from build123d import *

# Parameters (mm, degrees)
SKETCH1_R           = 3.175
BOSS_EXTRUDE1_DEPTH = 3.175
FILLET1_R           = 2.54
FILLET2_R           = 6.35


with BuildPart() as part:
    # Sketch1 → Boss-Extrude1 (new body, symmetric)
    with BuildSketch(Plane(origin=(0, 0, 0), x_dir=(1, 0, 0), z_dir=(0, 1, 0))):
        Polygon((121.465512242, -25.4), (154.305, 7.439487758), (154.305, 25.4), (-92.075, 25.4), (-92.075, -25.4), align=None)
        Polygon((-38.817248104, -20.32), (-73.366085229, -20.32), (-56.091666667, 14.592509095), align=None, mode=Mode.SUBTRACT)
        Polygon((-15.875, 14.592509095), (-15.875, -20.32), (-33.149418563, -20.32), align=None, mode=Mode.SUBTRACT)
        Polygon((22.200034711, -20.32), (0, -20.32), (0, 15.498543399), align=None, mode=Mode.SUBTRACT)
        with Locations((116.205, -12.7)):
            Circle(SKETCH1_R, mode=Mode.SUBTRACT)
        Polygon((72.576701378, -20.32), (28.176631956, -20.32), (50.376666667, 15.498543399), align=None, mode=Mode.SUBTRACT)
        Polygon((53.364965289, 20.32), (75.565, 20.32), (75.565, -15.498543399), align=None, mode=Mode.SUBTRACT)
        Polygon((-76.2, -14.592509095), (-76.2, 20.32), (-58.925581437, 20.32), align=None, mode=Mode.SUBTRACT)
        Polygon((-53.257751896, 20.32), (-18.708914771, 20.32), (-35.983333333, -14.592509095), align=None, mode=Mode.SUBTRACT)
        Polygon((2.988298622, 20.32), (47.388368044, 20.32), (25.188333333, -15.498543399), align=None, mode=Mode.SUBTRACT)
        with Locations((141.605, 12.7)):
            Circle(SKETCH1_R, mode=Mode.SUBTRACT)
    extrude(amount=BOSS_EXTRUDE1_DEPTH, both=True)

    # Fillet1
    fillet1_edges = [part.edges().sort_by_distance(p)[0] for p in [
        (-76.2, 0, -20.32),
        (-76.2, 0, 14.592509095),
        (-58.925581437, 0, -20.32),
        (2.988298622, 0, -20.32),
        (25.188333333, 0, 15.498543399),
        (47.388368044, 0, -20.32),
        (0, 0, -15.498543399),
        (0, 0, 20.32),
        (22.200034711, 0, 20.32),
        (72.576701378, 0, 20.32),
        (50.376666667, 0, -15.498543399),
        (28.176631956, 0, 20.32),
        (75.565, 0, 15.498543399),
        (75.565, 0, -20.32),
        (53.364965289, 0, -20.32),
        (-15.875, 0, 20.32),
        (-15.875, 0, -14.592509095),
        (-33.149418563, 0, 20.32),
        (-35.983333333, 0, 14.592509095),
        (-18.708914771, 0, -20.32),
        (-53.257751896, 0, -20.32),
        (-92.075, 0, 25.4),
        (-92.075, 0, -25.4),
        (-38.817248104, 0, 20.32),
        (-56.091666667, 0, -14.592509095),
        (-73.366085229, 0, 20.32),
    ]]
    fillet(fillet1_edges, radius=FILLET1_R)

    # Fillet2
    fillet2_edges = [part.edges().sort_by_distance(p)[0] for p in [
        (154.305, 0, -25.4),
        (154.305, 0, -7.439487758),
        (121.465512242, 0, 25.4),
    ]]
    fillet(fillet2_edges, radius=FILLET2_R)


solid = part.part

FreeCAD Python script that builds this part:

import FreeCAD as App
import Part
import Sketcher

V = App.Vector
Q = App.Units.Quantity


def edges_at(feature, points):
    """Names of the edges that pass closest to the given points."""
    edges = feature.Shape.Edges
    near = lambda p: min(range(len(edges)), key=lambda i: edges[i].distToShape(Part.Vertex(*p))[0])
    return sorted({f"Edge{near(p) + 1}" for p in points})


def add_polygon(sketch, points):
    """Adds a closed chain of lines whose ends are joined by coincident constraints."""
    first, n = sketch.GeometryCount, len(points)
    for a, b in zip(points, points[1:] + points[:1]):
        sketch.addGeometry(Part.LineSegment(App.Vector(*a, 0), App.Vector(*b, 0)), False)
    for i in range(n):
        sketch.addConstraint(Sketcher.Constraint("Coincident", first + i, 2, first + (i + 1) % n, 1))

doc = App.newDocument("Part")
body = doc.addObject("PartDesign::Body", "Body")

# Sketch on XZ plane
sketch1 = body.newObject("Sketcher::SketchObject", "Sketch")
sketch1.AttachmentSupport = (doc.getObject("XZ_Plane"), [""])
sketch1.MapMode = "FlatFace"
add_polygon(sketch1, [(121.5, 25.4), (154.3, -7.4), (154.3, -25.4), (-92.1, -25.4), (-92.1, 25.4)])  # lines 0-4
add_polygon(sketch1, [(-56.1, -14.6), (-38.8, 20.3), (-73.4, 20.3)])  # lines 5-7
add_polygon(sketch1, [(-33.1, 20.3), (-15.9, -14.6), (-15.9, 20.3)])  # lines 8-10
add_polygon(sketch1, [(0, -15.5), (22.2, 20.3), (0, 20.3)])  # lines 11-13
sketch1.addGeometry(Part.Circle(V(116.2, 12.7, 0), V(0, 0, 1), 3.2), False)  # 14
add_polygon(sketch1, [(50.4, -15.5), (72.6, 20.3), (28.2, 20.3)])  # lines 15-17
add_polygon(sketch1, [(-58.9, -20.3), (-76.2, 14.6), (-76.2, -20.3)])  # lines 18-20
add_polygon(sketch1, [(-36, 14.6), (-53.3, -20.3), (-18.7, -20.3)])  # lines 21-23
add_polygon(sketch1, [(25.2, 15.5), (3, -20.3), (47.4, -20.3)])  # lines 24-26
add_polygon(sketch1, [(75.6, 15.5), (53.4, -20.3), (75.6, -20.3)])  # lines 27-29
sketch1.addGeometry(Part.Circle(V(141.6, -12.7, 0), V(0, 0, 1), 3.2), False)  # 30
sketch1.addConstraint([
    Sketcher.Constraint("Vertical", 1),
    Sketcher.Constraint("Horizontal", 2),
    Sketcher.Constraint("Vertical", 3),
    Sketcher.Constraint("Horizontal", 4),
    Sketcher.Constraint("Horizontal", 6),
    Sketcher.Constraint("Vertical", 9),
    Sketcher.Constraint("Horizontal", 10),
    Sketcher.Constraint("Horizontal", 12),
    Sketcher.Constraint("Vertical", 13),
    Sketcher.Constraint("Horizontal", 16),
    Sketcher.Constraint("Vertical", 19),
    Sketcher.Constraint("Horizontal", 20),
    Sketcher.Constraint("Horizontal", 22),
    Sketcher.Constraint("Horizontal", 25),
    Sketcher.Constraint("Horizontal", 28),
    Sketcher.Constraint("Vertical", 29),
    Sketcher.Constraint("Equal", 14, 30),
    Sketcher.Constraint("PointOnObject", 12, 2, -2),
    Sketcher.Constraint("Parallel", 7, 8),
    Sketcher.Constraint("Parallel", 11, 15),
    Sketcher.Constraint("Parallel", 8, 18),
    Sketcher.Constraint("Parallel", 5, 21),
    Sketcher.Constraint("Parallel", 18, 23),
    Sketcher.Constraint("Parallel", 15, 24),
    Sketcher.Constraint("Parallel", 17, 26),
    Sketcher.Constraint("Parallel", 24, 27),
    Sketcher.Constraint("Horizontal", 7, 2, 8, 2),
    Sketcher.Constraint("Horizontal", 6, 2, 9, 2),
    Sketcher.Constraint("Horizontal", 10, 2, 11, 2),
    Sketcher.Constraint("Horizontal", 12, 2, 15, 2),
    Sketcher.Constraint("Horizontal", 13, 2, 17, 2),
    Sketcher.Constraint("Horizontal", 20, 2, 21, 2),
    Sketcher.Constraint("Horizontal", 18, 2, 23, 2),
    Sketcher.Constraint("Horizontal", 22, 2, 24, 2),
    Sketcher.Constraint("Horizontal", 25, 2, 27, 2),
    Sketcher.Constraint("Horizontal", 26, 2, 29, 2),
    Sketcher.Constraint("Equal", 10, 20),
    Sketcher.Constraint("Equal", 16, 25),
    Sketcher.Constraint("Equal", 5, 7),
    Sketcher.Constraint("Equal", 15, 17),
    Sketcher.Constraint("Diameter", 14, Q("0.25 in")),
    Sketcher.Constraint("DistanceY", 3, 1, 3, 2, Q("2 in")),
    Sketcher.Constraint("DistanceX", 2, 2, 2, 1, Q("9.7 in")),
    Sketcher.Constraint("DistanceY", 1, 2, -1, 1, Q("1 in")),
    Sketcher.Constraint("DistanceX", 18, 2, -1, 1, Q("3 in")),
    Sketcher.Constraint("Angle", 0, Q("-45 deg")),
    Sketcher.Constraint("DistanceX", 14, 3, 30, 3, Q("1 in")),
    Sketcher.Constraint("DistanceY", 30, 3, 14, 3, Q("1 in")),
    Sketcher.Constraint("DistanceX", 2, 2, 8, 2, Q("3 in")),
    Sketcher.Constraint("DistanceY", -1, 1, 14, 3, Q("0.5 in")),
    Sketcher.Constraint("DistanceY", -1, 1, 5, 2, Q("0.8 in")),
    Sketcher.Constraint("DistanceY", 19, 2, -1, 1, Q("0.8 in")),
    Sketcher.Constraint("DistanceX", 30, 3, 0, 2, Q("0.5 in")),
    Sketcher.Constraint("DistanceX", 28, 2, 14, 3, Q("1.6 in")),
    Sketcher.Constraint("DistanceX", -1, 1, 14, 3, Q("4.575 in")),
    Sketcher.Constraint("DistanceX", 10, 2, 10, 1, Q("17.274419 mm")),
    Sketcher.Constraint("DistanceX", 16, 2, 16, 1, Q("44.400069 mm")),
    Sketcher.Constraint("DistanceY", 9, 1, 9, 2, Q("34.912509 mm")),
    Sketcher.Constraint("DistanceX", -1, 1, 15, 2, Q("72.576701 mm")),
    Sketcher.Constraint("DistanceX", -1, 1, 24, 2, Q("2.988299 mm")),
    Sketcher.Constraint("DistanceX", 7, 2, 11, 2, Q("78.291701 mm")),
    Sketcher.Constraint("Distance", 0, Q("46.442049 mm")),
    Sketcher.Constraint("DistanceY", 13, 2, 13, 1, Q("35.818543 mm")),
    Sketcher.Constraint("DistanceX", 21, 2, -1, 1, Q("53.257752 mm")),
])
pad1 = body.newObject("PartDesign::Pad", "Pad")
pad1.Profile = sketch1
pad1.Length = Q("0.25 in")
pad1.Midplane = True
doc.recompute()

fillet = body.newObject("PartDesign::Fillet", "Fillet")
fillet.Base = (pad1, edges_at(pad1, [
    (-76.2, 0, -20.32),
    (-76.2, 0, 14.593),
    (-58.926, 0, -20.32),
    (2.988, 0, -20.32),
    (25.188, 0, 15.499),
    (47.388, 0, -20.32),
    (0, 0, -15.499),
    (0, 0, 20.32),
    (22.2, 0, 20.32),
    (72.577, 0, 20.32),
    (50.377, 0, -15.499),
    (28.177, 0, 20.32),
    (75.565, 0, 15.499),
    (75.565, 0, -20.32),
    (53.365, 0, -20.32),
    (-15.875, 0, 20.32),
    (-15.875, 0, -14.593),
    (-33.149, 0, 20.32),
    (-35.983, 0, 14.593),
    (-18.709, 0, -20.32),
    (-53.258, 0, -20.32),
    (-92.075, 0, 25.4),
    (-92.075, 0, -25.4),
    (-38.817, 0, 20.32),
    (-56.092, 0, -14.593),
    (-73.366, 0, 20.32),
]))
fillet.Radius = Q("0.1 in")
doc.recompute()

fillet2 = body.newObject("PartDesign::Fillet", "Fillet001")
fillet2.Base = (fillet, edges_at(fillet, [(154.305, 0, -25.4), (154.305, 0, -7.439), (121.466, 0, 25.4)]))
fillet2.Radius = Q("0.25 in")

doc.recompute()
